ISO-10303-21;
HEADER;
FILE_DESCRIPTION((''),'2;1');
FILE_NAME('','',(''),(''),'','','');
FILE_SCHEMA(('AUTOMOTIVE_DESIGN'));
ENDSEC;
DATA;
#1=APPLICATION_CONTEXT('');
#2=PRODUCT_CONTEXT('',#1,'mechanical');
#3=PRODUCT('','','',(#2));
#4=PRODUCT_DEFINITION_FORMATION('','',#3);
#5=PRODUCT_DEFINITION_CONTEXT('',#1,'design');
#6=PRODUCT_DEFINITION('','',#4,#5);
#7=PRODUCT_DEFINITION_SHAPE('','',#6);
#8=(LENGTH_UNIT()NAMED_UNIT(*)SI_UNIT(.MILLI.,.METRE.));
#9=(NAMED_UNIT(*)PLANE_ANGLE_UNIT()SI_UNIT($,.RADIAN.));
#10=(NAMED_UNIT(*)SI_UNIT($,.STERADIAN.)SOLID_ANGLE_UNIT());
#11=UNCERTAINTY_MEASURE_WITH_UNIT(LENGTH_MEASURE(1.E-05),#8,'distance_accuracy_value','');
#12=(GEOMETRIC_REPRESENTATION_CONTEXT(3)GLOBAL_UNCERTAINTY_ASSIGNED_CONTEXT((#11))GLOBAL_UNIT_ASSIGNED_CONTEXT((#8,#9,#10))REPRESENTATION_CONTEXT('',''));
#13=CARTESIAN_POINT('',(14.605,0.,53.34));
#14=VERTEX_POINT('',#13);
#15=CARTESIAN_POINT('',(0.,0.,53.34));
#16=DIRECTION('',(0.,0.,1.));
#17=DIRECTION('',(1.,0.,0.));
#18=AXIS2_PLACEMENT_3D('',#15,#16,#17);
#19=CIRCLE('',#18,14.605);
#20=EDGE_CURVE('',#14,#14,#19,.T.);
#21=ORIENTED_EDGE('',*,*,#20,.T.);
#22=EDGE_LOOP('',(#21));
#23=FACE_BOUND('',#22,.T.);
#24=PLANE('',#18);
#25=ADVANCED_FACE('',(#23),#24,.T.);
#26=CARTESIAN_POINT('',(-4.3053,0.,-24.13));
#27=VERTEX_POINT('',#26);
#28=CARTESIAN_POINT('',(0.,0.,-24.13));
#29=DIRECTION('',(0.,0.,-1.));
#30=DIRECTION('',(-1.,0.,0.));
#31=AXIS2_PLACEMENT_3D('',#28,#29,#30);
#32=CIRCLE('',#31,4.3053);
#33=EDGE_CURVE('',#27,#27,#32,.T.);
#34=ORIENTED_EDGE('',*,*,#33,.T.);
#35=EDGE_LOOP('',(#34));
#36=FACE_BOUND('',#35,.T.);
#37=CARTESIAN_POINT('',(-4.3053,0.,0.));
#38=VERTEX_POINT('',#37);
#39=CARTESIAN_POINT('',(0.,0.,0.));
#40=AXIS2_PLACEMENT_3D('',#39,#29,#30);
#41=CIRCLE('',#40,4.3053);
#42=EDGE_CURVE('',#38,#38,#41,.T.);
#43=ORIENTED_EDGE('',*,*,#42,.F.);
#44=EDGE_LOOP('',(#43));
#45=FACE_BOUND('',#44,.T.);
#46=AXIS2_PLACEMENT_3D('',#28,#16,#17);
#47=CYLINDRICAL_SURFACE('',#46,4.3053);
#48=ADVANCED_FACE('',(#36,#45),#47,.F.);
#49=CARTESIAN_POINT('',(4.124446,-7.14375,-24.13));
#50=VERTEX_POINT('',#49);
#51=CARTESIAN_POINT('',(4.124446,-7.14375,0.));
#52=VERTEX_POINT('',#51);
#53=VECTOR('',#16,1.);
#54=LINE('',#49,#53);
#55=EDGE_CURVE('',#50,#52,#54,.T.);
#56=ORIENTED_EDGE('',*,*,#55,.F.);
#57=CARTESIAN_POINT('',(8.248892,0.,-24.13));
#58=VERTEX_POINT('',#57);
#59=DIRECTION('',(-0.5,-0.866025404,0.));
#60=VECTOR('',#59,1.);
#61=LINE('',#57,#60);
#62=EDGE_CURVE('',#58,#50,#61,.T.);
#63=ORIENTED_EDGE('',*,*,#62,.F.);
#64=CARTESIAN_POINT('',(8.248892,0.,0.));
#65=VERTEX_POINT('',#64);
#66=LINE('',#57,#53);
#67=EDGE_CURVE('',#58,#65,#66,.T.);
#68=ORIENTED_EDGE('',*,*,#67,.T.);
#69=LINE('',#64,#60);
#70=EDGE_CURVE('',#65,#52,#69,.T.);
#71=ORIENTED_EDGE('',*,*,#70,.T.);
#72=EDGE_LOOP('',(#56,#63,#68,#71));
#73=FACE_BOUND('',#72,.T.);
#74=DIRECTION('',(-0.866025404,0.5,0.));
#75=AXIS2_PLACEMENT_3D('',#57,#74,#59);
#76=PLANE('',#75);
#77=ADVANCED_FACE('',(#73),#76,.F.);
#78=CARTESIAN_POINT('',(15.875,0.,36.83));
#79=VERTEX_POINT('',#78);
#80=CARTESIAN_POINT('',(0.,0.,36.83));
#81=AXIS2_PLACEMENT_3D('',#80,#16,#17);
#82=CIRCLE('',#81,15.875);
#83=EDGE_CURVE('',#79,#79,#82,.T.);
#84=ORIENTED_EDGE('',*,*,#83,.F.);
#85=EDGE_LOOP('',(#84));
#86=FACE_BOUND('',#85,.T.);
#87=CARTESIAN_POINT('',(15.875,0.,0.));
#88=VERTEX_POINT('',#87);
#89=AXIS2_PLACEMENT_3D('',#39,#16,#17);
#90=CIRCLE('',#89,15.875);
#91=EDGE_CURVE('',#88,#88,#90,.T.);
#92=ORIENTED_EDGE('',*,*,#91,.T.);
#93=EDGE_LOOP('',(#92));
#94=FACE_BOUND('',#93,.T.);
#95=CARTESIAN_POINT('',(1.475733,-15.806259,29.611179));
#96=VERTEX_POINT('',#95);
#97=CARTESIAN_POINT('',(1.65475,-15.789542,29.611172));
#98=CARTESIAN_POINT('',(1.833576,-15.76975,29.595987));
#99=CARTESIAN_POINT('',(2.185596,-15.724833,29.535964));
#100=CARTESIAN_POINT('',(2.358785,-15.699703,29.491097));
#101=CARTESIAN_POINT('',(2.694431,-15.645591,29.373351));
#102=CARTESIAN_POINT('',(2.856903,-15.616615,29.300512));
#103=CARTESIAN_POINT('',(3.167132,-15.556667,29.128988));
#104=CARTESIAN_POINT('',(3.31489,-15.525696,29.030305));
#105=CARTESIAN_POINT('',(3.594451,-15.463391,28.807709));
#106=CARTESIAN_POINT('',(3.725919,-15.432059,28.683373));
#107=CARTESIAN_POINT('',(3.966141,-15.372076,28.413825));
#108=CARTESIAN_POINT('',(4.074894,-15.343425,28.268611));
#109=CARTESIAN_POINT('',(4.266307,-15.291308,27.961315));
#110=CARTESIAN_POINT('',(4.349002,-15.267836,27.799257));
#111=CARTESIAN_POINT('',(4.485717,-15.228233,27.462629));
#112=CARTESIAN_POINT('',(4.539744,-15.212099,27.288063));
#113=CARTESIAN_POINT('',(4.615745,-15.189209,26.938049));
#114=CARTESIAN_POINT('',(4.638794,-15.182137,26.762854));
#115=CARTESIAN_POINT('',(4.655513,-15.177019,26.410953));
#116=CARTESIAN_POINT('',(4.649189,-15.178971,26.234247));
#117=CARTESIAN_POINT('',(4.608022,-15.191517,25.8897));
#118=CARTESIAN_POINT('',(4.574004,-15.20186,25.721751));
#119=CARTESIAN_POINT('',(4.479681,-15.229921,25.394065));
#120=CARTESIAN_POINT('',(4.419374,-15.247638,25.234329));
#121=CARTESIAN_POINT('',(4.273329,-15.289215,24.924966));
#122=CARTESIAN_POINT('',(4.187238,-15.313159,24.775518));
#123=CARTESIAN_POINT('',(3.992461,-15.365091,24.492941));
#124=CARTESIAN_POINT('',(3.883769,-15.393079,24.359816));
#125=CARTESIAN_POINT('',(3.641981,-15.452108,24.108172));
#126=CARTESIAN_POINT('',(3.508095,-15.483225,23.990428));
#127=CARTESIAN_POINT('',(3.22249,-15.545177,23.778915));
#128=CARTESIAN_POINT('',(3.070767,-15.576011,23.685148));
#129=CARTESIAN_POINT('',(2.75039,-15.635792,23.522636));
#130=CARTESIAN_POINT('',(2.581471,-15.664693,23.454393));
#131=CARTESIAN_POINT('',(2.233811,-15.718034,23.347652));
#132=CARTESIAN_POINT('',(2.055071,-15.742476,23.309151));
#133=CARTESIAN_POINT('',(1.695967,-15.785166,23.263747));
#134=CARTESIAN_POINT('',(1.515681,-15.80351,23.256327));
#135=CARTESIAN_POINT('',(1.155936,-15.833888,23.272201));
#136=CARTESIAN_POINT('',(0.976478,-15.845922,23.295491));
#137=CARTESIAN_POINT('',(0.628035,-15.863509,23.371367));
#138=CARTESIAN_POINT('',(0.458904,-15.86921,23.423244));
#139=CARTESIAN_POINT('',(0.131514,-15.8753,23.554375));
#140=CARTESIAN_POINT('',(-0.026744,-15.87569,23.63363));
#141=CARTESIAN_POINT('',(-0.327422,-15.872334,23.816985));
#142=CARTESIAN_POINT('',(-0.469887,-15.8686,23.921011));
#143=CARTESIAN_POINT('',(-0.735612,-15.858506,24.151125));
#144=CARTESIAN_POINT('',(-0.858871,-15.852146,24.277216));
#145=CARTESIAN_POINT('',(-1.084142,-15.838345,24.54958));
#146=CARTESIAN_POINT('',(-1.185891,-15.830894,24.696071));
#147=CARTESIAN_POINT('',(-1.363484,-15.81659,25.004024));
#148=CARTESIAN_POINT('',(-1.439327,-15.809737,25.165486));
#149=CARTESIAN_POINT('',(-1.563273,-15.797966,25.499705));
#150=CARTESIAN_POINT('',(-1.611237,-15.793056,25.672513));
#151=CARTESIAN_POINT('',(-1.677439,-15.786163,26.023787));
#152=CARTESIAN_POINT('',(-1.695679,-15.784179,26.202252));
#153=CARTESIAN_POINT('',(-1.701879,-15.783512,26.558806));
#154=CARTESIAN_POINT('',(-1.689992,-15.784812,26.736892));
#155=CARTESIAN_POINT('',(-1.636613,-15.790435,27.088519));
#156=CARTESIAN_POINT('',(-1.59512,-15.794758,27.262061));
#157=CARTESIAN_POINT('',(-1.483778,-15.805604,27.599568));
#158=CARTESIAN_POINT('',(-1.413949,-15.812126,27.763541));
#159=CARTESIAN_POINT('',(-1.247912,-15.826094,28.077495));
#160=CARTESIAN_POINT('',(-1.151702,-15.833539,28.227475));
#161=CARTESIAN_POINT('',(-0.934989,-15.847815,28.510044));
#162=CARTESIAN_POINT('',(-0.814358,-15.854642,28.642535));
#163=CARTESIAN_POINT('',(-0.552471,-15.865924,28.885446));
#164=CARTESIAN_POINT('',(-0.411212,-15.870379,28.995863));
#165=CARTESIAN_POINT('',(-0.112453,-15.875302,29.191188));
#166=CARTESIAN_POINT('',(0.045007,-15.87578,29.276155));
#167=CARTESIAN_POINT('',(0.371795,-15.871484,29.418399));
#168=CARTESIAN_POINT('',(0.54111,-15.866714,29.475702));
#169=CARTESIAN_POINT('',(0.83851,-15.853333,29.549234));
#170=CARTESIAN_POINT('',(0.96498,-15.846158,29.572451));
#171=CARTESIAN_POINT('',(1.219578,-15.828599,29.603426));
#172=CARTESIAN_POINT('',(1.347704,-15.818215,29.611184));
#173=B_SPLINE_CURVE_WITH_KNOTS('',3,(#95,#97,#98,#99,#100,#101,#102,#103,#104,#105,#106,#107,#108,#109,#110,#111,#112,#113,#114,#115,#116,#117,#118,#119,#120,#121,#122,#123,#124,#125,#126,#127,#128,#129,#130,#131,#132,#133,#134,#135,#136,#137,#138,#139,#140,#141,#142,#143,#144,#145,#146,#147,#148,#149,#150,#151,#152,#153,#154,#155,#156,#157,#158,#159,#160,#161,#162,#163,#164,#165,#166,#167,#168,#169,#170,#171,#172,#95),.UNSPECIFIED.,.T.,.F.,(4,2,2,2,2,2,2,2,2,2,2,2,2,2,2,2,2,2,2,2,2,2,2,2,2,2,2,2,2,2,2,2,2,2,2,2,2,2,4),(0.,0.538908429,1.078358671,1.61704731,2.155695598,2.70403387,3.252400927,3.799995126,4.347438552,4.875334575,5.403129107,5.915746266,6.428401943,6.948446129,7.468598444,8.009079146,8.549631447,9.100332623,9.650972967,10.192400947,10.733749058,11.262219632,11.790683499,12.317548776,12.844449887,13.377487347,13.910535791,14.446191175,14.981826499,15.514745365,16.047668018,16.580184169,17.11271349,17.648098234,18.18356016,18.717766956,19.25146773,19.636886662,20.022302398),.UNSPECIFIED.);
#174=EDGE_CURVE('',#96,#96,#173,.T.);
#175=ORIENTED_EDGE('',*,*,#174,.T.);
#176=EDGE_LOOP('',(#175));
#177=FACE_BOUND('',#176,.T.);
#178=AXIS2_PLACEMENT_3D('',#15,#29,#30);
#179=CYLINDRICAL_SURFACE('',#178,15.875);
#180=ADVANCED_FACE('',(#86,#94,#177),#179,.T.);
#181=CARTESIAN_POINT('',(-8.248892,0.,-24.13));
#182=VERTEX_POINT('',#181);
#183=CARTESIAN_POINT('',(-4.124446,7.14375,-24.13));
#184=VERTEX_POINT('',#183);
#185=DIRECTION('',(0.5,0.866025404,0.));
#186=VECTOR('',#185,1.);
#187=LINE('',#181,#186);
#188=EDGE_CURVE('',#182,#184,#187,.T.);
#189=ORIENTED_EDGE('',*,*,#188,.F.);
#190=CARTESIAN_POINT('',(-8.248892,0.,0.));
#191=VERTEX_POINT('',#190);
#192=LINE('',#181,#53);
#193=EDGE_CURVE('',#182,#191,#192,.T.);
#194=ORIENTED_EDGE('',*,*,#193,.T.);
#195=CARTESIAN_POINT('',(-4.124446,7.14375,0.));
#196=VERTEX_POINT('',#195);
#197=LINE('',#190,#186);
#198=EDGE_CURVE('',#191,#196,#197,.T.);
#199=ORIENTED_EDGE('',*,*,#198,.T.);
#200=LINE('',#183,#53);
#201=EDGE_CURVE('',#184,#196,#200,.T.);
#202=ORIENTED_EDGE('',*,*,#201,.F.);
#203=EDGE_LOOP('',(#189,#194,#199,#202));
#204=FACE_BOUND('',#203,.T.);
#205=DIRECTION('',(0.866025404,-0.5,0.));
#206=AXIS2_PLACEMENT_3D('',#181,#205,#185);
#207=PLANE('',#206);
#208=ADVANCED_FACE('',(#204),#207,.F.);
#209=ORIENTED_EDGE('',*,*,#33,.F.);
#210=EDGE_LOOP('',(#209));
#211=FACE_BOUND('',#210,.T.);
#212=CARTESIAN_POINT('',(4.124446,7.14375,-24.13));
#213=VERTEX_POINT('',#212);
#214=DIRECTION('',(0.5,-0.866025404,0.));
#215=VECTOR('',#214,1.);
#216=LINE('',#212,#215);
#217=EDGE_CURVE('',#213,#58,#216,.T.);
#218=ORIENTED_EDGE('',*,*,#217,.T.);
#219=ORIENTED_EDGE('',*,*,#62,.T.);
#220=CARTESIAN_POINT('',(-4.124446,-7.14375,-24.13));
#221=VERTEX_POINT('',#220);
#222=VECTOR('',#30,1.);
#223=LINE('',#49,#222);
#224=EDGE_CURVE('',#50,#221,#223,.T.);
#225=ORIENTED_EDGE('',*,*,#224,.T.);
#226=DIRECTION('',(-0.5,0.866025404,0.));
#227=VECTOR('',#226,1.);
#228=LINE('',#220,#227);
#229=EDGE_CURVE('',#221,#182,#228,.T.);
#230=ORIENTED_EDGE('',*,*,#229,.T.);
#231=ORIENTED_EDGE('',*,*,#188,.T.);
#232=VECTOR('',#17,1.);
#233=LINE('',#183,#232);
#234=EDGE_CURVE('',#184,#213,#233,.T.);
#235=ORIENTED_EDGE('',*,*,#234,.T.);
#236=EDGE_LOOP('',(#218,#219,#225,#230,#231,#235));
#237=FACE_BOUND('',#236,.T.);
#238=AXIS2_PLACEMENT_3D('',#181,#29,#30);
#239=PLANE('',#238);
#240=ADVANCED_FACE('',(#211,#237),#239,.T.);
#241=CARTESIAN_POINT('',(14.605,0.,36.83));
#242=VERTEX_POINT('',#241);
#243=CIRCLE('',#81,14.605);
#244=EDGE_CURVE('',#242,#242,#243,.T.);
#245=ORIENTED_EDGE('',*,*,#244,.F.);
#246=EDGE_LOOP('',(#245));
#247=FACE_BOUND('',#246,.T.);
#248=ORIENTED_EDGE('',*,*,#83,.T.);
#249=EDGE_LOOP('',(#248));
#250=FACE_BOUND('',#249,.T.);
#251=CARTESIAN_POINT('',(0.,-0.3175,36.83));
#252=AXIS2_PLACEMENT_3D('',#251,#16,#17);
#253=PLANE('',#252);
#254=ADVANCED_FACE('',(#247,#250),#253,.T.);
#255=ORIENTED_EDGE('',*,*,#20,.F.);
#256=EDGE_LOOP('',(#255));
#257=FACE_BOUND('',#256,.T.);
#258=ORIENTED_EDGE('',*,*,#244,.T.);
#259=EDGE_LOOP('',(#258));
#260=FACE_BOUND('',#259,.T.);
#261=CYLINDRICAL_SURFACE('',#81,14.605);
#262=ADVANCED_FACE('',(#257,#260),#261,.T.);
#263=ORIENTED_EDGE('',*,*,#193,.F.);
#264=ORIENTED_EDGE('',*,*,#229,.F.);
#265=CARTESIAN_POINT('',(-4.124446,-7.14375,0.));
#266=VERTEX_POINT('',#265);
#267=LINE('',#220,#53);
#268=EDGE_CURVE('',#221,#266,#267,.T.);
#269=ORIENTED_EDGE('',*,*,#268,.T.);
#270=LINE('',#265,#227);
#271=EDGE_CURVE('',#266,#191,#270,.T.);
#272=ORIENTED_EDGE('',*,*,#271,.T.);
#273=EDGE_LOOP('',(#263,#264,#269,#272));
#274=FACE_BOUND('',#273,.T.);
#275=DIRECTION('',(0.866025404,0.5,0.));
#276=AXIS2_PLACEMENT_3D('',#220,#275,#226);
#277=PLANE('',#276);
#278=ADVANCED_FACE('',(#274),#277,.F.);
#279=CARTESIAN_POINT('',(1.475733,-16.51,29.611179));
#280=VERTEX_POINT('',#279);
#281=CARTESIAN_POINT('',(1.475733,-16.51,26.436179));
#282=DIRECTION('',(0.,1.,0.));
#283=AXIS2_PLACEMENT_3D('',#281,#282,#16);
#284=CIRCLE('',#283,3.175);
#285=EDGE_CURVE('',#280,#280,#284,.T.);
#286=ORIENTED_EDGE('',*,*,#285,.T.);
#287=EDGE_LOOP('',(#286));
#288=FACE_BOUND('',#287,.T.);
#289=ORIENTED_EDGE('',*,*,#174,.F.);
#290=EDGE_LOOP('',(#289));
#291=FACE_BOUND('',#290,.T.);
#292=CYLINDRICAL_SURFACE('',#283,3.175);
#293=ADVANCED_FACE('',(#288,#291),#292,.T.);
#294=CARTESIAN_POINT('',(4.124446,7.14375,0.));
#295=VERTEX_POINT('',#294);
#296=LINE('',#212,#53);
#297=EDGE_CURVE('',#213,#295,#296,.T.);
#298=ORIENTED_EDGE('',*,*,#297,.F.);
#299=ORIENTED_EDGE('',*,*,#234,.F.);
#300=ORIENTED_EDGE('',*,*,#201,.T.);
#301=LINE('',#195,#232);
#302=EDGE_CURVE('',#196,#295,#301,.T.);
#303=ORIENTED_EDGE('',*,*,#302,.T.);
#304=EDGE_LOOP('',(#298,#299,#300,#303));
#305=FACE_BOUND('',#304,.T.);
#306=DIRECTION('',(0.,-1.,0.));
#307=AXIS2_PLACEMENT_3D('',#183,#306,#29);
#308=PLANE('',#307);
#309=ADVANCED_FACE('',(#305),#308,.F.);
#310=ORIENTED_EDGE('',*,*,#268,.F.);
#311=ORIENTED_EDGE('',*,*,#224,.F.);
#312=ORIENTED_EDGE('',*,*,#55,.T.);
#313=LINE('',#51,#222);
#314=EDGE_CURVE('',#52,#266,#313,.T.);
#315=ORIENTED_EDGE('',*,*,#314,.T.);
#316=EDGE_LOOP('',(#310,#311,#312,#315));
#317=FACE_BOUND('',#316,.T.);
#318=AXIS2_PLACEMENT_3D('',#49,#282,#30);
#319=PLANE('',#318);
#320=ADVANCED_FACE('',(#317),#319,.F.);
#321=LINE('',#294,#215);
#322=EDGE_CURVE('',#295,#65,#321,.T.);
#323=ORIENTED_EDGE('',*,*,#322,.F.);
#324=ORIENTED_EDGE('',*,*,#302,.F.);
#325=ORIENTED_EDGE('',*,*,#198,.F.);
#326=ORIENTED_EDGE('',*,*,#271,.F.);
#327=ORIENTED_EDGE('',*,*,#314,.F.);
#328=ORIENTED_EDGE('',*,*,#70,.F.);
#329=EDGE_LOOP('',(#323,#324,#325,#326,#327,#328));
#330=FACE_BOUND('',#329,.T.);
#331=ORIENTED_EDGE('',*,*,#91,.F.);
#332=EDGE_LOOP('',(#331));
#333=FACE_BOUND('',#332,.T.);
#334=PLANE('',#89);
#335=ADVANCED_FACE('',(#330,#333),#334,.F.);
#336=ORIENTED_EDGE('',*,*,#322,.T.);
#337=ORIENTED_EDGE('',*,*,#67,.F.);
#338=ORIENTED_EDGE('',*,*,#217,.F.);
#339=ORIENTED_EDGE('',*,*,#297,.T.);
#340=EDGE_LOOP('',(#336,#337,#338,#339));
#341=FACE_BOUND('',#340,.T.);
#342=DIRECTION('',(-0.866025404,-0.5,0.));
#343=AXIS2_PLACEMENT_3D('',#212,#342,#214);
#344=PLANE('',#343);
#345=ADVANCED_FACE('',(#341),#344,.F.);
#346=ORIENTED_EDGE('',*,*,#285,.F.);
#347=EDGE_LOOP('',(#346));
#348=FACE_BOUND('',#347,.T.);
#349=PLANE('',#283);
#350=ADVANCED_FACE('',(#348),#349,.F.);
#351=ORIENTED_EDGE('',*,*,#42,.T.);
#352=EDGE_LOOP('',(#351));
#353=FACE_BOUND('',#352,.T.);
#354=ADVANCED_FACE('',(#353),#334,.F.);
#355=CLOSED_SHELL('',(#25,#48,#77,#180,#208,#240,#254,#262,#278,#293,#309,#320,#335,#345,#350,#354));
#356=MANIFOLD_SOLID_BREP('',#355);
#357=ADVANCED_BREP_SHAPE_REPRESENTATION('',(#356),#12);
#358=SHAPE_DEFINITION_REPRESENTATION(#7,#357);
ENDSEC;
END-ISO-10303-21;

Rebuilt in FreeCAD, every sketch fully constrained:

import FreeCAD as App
import Part
import Sketcher
from FreeCAD import Vector
Q = App.Units.Quantity

doc = App.newDocument("Part")
body = doc.addObject("PartDesign::Body", "Body")

sketch1 = body.newObject("Sketcher::SketchObject", "Sketch")
sketch1.AttachmentSupport = (doc.getObject("XY_Plane"), [""])
sketch1.MapMode = "FlatFace"
sketch1.addGeometry(Part.Circle(Vector(0, 0, 0), Vector(0, 0, 1), 16), False)
sketch1.addConstraint([
    Sketcher.Constraint("Coincident", 0, 3, -1, 1),
    Sketcher.Constraint("Diameter", 0, Q("1.25 in")),
])
pad1 = body.newObject("PartDesign::Pad", "Pad")
pad1.Profile = sketch1
pad1.Length = Q("2.1 in")

sketch2 = body.newObject("Sketcher::SketchObject", "Sketch001")
sketch2.AttachmentSupport = (doc.getObject("XY_Plane"), [""])
sketch2.MapMode = "FlatFace"
sketch2.addGeometry([
    Part.LineSegment(Vector(-8.2, 0, 0), Vector(-4.1, 7.1, 0)),
    Part.LineSegment(Vector(-4.1, 7.1, 0), Vector(4.1, 7.1, 0)),
    Part.LineSegment(Vector(4.1, 7.1, 0), Vector(8.2, 0, 0)),
    Part.LineSegment(Vector(8.2, 0, 0), Vector(4.1, -7.1, 0)),
    Part.LineSegment(Vector(4.1, -7.1, 0), Vector(-4.1, -7.1, 0)),
    Part.LineSegment(Vector(-4.1, -7.1, 0), Vector(-8.2, 0, 0)),
    Part.Circle(Vector(0, 0, 0), Vector(0, 0, 1), 4.3),
], False)
sketch2.addConstraint([
    Sketcher.Constraint("Coincident", 0, 2, 1, 1),
    Sketcher.Constraint("Coincident", 1, 2, 2, 1),
    Sketcher.Constraint("Coincident", 2, 2, 3, 1),
    Sketcher.Constraint("Coincident", 3, 2, 4, 1),
    Sketcher.Constraint("Coincident", 4, 2, 5, 1),
    Sketcher.Constraint("Coincident", 5, 2, 0, 1),
    Sketcher.Constraint("Horizontal", 1),
    Sketcher.Constraint("Horizontal", 4),
    Sketcher.Constraint("Coincident", 6, 3, -1, 1),
    Sketcher.Constraint("Symmetric", 0, 2, 3, 2, -1, 1),
    Sketcher.Constraint("Symmetric", 2, 2, 5, 2, -1, 1),
    Sketcher.Constraint("PointOnObject", 2, 2, -1),
    Sketcher.Constraint("Parallel", 2, 5),
    Sketcher.Constraint("Vertical", 1, 2, 3, 2),
    Sketcher.Constraint("Diameter", 6, Q("0.339 in")),
    Sketcher.Constraint("Angle", 0, Q("60 deg")),
    Sketcher.Constraint("DistanceY", -1, 1, 0, 2, Q("0.28125 in")),
    Sketcher.Constraint("DistanceX", 1, 1, 1, 2, Q("8.248892 mm")),
])
pad2 = body.newObject("PartDesign::Pad", "Pad001")
pad2.Profile = sketch2
pad2.Length = Q("0.95 in")
pad2.Reversed = True

sketch3 = body.newObject("Sketcher::SketchObject", "Sketch002")
sketch3.AttachmentSupport = (doc.getObject("XZ_Plane"), [""])
sketch3.MapMode = "FlatFace"
sketch3.addGeometry(Part.Circle(Vector(1.5, 26.4, 0), Vector(0, 0, 1), 3.2), False)
sketch3.addConstraint([
    Sketcher.Constraint("Diameter", 0, Q("0.25 in")),
    Sketcher.Constraint("DistanceY", -1, 1, 0, 3, Q("26.436179 mm")),
    Sketcher.Constraint("DistanceX", -1, 1, 0, 3, Q("1.475733 mm")),
])
pad3 = body.newObject("PartDesign::Pad", "Pad002")
pad3.Profile = sketch3
pad3.Length = Q("0.65 in")

sketch4 = body.newObject("Sketcher::SketchObject", "Sketch003")
sketch4.AttachmentSupport = (doc.getObject("XY_Plane"), [""])
sketch4.MapMode = "FlatFace"
sketch4.AttachmentOffset = App.Placement(Vector(0, 0, 2.1 * 25.4), App.Rotation())
sketch4.addGeometry([
    Part.LineSegment(Vector(-26, 26, 0), Vector(-26, -26, 0)),
    Part.LineSegment(Vector(-26, -26, 0), Vector(26, -26, 0)),
    Part.LineSegment(Vector(26, -26, 0), Vector(26, 26, 0)),
    Part.LineSegment(Vector(26, 26, 0), Vector(-26, 26, 0)),
    Part.Circle(Vector(0, 0, 0), Vector(0, 0, 1), 15),
], False)
sketch4.addConstraint([
    Sketcher.Constraint("Coincident", 0, 2, 1, 1),
    Sketcher.Constraint("Coincident", 1, 2, 2, 1),
    Sketcher.Constraint("Coincident", 2, 2, 3, 1),
    Sketcher.Constraint("Coincident", 3, 2, 0, 1),
    Sketcher.Constraint("Vertical", 0),
    Sketcher.Constraint("Horizontal", 1),
    Sketcher.Constraint("Vertical", 2),
    Sketcher.Constraint("Horizontal", 3),
    Sketcher.Constraint("Coincident", 4, 3, -1, 1),
    Sketcher.Constraint("Diameter", 4, Q("1.15 in")),
    Sketcher.Constraint("DistanceX", 1, 1, 1, 2, Q("51.704 mm")),
    Sketcher.Constraint("DistanceY", 0, 2, 0, 1, Q("52.339 mm")),
    Sketcher.Constraint("DistanceX", 0, 2, -1, 1, Q("25.852 mm")),
    Sketcher.Constraint("DistanceY", 0, 2, -1, 1, Q("26.487 mm")),
])
pocket1 = body.newObject("PartDesign::Pocket", "Pocket")
pocket1.Profile = sketch4
pocket1.Length = Q("0.65 in")

doc.recompute()
